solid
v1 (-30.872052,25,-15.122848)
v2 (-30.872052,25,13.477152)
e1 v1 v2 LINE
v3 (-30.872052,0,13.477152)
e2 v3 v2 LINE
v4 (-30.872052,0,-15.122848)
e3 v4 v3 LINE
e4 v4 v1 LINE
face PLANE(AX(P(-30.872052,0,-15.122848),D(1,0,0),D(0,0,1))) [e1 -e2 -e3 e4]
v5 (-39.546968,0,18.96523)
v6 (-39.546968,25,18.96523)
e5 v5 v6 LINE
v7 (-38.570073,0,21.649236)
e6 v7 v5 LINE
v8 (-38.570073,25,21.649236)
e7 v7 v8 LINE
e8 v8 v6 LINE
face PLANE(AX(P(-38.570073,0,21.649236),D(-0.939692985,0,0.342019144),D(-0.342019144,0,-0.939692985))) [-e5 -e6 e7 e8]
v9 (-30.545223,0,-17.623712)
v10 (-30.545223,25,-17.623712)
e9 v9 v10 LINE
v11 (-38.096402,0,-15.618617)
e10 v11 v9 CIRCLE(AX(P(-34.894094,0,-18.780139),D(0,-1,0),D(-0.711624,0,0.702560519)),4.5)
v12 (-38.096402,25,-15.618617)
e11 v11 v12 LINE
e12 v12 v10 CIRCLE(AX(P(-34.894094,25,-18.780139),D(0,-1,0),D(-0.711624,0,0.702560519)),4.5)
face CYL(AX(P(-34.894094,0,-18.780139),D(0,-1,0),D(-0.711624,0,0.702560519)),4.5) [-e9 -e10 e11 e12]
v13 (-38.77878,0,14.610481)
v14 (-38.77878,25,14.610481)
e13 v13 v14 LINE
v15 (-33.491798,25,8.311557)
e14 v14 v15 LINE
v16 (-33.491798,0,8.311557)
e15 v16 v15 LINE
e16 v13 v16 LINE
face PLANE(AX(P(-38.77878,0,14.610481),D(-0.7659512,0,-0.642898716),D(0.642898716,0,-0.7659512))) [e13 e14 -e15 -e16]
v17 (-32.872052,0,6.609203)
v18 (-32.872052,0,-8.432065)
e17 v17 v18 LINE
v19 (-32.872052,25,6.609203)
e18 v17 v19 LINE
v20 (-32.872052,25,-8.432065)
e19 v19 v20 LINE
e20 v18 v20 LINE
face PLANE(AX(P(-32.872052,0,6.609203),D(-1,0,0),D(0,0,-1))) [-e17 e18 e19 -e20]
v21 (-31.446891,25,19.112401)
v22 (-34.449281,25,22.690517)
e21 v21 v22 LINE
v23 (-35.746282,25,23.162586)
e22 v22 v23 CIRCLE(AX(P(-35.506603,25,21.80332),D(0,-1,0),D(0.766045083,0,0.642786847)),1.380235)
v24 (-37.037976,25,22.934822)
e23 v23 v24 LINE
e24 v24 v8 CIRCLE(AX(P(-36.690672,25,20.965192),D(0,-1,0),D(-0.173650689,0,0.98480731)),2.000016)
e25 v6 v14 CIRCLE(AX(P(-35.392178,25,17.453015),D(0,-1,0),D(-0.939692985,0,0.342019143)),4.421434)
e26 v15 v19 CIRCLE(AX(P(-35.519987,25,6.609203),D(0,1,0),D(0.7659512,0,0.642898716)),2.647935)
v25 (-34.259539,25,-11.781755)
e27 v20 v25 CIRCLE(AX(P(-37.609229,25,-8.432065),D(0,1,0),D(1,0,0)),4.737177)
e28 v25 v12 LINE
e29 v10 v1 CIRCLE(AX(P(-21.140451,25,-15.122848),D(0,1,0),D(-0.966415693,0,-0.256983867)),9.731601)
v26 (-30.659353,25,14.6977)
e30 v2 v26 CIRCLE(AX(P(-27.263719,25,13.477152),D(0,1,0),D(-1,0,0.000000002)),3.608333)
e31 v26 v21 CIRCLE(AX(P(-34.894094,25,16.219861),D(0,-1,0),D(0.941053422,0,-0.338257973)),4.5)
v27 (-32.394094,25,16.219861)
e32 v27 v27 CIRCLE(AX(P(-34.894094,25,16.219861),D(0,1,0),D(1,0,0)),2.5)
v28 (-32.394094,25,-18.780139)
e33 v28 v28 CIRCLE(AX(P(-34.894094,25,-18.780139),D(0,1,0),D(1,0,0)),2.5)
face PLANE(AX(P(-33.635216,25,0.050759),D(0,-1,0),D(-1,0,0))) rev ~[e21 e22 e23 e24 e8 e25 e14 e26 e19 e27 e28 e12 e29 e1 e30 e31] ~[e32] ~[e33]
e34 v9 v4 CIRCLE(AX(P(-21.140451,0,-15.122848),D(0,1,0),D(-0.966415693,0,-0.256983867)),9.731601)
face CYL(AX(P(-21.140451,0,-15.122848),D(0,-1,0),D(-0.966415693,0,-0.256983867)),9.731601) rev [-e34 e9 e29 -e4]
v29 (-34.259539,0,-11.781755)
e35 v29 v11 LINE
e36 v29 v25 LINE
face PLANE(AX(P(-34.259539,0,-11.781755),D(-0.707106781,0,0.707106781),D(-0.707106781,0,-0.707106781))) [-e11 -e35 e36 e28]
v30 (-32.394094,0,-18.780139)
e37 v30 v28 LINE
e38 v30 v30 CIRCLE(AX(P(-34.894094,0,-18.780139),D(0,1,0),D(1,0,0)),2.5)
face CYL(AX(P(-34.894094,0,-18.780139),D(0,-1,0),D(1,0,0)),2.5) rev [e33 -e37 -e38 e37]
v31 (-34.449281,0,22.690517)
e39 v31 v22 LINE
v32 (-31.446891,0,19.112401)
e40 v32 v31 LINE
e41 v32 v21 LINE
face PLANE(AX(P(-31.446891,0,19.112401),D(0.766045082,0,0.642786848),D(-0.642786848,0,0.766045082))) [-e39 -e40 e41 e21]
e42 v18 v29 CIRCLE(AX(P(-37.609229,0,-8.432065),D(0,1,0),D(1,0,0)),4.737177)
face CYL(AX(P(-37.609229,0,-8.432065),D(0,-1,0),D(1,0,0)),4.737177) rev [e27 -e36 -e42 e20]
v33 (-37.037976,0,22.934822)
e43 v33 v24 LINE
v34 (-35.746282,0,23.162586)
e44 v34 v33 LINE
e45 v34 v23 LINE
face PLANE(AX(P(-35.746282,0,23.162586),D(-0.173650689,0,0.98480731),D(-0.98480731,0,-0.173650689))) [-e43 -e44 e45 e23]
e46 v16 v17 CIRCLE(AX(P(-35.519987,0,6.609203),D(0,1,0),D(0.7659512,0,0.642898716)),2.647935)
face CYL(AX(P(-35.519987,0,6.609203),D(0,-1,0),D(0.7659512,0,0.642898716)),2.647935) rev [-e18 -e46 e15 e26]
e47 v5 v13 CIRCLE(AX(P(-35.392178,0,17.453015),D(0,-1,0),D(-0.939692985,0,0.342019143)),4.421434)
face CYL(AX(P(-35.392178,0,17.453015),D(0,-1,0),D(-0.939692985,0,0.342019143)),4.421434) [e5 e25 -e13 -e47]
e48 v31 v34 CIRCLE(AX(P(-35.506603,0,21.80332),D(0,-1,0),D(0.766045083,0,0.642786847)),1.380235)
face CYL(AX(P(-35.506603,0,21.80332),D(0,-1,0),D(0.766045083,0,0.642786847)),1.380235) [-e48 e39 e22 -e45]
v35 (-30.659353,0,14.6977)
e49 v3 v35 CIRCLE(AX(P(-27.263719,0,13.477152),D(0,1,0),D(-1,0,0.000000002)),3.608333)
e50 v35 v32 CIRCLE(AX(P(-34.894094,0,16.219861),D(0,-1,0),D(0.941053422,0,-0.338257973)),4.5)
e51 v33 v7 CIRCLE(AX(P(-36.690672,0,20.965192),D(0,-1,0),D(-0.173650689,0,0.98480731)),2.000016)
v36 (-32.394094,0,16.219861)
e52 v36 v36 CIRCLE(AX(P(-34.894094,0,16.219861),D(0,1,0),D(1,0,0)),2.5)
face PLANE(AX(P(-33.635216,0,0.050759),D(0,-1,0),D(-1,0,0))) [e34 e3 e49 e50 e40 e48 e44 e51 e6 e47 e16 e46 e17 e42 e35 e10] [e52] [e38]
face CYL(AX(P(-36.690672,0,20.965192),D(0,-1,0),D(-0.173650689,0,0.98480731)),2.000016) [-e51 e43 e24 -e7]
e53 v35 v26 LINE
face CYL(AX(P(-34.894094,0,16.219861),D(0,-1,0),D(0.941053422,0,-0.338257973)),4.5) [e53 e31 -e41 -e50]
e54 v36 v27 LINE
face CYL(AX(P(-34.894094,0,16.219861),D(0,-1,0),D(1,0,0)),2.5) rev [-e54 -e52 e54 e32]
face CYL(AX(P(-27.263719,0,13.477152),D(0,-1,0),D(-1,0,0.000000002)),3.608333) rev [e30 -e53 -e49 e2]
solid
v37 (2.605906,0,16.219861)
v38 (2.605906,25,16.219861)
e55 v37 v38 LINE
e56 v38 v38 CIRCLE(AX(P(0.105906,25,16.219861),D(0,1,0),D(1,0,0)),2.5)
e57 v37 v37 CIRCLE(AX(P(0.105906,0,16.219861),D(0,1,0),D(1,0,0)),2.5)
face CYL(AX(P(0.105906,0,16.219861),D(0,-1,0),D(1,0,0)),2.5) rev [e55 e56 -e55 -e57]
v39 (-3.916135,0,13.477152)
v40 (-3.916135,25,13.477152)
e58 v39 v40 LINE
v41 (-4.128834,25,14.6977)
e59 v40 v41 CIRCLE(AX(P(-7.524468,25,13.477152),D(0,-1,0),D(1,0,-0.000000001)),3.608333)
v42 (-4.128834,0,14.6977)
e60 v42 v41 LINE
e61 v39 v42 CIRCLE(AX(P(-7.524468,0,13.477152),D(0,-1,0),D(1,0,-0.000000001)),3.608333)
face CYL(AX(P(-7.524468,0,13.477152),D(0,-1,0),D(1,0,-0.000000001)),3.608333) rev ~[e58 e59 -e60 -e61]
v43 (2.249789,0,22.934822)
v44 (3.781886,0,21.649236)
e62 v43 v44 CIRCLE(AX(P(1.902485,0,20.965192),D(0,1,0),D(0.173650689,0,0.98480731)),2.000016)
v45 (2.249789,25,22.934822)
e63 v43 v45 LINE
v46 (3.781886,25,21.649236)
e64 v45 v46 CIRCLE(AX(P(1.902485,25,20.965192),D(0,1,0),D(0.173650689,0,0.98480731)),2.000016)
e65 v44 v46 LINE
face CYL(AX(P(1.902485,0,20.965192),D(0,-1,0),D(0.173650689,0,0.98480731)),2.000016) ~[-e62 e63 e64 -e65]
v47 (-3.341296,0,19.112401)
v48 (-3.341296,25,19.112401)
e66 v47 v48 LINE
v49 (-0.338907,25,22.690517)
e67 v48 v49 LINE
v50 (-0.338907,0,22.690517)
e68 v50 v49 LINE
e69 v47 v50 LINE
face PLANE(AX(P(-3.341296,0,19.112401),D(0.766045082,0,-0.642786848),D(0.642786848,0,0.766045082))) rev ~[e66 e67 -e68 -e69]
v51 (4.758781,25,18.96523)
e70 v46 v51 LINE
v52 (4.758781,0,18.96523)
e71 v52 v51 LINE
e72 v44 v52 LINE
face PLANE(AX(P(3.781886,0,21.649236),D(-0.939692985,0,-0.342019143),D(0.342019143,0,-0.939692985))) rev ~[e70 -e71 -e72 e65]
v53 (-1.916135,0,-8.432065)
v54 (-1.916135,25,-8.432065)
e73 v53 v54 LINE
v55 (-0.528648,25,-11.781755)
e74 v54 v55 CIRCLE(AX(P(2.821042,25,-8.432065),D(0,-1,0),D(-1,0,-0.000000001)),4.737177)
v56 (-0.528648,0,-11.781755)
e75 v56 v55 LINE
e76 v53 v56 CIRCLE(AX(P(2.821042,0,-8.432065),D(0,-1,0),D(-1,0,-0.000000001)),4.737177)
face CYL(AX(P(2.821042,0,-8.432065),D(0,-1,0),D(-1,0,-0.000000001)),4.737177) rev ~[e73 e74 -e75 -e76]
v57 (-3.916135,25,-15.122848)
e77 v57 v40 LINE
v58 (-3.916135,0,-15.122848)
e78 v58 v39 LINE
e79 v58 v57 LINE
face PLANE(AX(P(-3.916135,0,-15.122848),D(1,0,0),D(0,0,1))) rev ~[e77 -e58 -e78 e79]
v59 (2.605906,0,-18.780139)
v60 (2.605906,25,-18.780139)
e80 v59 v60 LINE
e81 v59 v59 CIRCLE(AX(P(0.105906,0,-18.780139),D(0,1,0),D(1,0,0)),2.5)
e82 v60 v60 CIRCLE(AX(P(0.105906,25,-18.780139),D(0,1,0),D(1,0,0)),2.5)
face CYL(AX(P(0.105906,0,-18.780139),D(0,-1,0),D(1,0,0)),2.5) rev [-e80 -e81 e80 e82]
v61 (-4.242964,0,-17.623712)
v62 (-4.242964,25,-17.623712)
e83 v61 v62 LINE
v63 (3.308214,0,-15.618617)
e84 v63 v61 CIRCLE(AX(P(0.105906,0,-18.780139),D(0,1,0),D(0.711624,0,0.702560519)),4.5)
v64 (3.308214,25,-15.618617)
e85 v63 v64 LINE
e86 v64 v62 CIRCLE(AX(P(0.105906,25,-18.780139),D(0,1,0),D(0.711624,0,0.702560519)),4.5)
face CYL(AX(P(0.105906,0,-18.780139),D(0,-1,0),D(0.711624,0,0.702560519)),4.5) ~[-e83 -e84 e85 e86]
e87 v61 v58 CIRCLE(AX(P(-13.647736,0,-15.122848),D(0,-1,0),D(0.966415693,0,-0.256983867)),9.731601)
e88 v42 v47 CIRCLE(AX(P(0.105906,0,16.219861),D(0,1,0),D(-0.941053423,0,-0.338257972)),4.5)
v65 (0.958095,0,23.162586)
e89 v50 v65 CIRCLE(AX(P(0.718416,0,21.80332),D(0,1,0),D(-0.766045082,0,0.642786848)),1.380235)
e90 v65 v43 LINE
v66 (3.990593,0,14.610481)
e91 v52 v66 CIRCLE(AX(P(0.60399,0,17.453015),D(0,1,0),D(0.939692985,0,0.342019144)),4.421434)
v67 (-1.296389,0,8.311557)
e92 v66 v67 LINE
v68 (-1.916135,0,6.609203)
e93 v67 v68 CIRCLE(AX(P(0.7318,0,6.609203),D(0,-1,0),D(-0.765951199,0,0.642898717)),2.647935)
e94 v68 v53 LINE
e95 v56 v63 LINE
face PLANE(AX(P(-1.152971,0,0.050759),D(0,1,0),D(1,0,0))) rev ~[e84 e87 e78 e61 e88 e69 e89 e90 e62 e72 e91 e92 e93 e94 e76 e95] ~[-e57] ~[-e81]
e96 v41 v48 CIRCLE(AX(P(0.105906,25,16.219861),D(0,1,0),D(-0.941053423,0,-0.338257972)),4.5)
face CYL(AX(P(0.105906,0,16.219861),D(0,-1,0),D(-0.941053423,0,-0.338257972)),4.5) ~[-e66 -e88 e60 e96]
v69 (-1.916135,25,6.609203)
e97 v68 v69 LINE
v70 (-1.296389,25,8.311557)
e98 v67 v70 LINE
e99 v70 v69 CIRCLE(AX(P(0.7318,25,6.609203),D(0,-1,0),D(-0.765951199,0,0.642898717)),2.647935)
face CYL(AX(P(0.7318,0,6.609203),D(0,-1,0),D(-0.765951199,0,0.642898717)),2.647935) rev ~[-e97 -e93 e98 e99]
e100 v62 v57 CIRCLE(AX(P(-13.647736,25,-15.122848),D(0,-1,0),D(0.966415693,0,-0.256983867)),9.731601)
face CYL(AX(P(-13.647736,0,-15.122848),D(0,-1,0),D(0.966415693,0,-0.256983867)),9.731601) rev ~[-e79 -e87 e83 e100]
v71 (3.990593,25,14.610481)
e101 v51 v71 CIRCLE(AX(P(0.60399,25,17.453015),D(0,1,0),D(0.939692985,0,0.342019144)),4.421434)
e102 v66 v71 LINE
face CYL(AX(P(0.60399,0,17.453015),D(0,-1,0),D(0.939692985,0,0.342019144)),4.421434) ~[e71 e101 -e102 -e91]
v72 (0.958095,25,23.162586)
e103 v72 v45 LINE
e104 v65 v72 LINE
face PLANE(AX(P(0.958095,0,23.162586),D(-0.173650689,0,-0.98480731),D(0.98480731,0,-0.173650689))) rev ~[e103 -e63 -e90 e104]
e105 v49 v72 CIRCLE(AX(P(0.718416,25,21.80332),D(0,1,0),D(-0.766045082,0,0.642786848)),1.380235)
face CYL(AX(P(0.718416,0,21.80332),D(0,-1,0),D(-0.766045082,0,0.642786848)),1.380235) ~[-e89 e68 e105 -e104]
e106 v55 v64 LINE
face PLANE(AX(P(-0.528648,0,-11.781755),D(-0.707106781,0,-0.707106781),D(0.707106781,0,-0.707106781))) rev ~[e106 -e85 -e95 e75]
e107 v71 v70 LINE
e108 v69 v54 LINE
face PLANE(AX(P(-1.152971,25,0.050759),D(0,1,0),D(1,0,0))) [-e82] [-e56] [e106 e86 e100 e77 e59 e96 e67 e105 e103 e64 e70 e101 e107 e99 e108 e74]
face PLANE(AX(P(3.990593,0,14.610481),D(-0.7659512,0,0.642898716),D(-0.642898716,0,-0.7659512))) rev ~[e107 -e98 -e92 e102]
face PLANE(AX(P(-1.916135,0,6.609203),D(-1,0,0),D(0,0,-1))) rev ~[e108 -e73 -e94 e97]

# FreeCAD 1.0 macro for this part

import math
import FreeCAD as App
import Part
import Sketcher

V = App.Vector
Q = App.Units.Quantity

doc = App.newDocument("Part")
body = doc.addObject("PartDesign::Body", "Body")

# Sketch on XZ plane
sketch1 = body.newObject("Sketcher::SketchObject", "Sketch")
sketch1.AttachmentSupport = (doc.getObject("XZ_Plane"), [""])
sketch1.MapMode = "FlatFace"
sketch1.addGeometry([
    Part.LineSegment(V(-3.341296, 19.112401, 0), V(-0.338907, 22.690517, 0)),  # 0
    Part.ArcOfCircle(Part.Circle(V(0.718416, 21.80332, 0), V(0, 0, 1), 1.380235), math.radians(79.999854), math.radians(140.000057)),  # 1
    Part.LineSegment(V(0.958095, 23.162586, 0), V(2.249789, 22.934822, 0)),  # 2
    Part.ArcOfCircle(Part.Circle(V(1.902485, 20.965192, 0), V(0, 0, 1), 2.000016), math.radians(19.999939), math.radians(79.999854)),  # 3
    Part.LineSegment(V(3.781886, 21.649236, 0), V(4.758781, 18.96523, 0)),  # 4
    Part.ArcOfCircle(Part.Circle(V(0.60399, 17.453015, 0), V(0, 0, 1), 4.421434), math.radians(-40.008311), math.radians(19.999939)),  # 5
    Part.LineSegment(V(3.990593, 14.610481, 0), V(-1.296389, 8.311557, 0)),  # 6
    Part.ArcOfCircle(Part.Circle(V(0.7318, 6.609203, 0), V(0, 0, 1), 2.647935), math.radians(139.991689), math.radians(180)),  # 7
    Part.LineSegment(V(-1.916135, 6.609203, 0), V(-1.916135, -8.432065, 0)),  # 8
    Part.ArcOfCircle(Part.Circle(V(2.821042, -8.432065, 0), V(0, 0, 1), 4.737177), math.radians(-180), math.radians(-135)),  # 9
    Part.LineSegment(V(-0.528648, -11.781755, 0), V(3.308214, -15.618617, 0)),  # 10
    Part.ArcOfCircle(Part.Circle(V(0.105906, -18.780139, 0), V(0, 0, 1), 4.5), math.radians(165.10883), math.radians(404.632797)),  # 11
    Part.ArcOfCircle(Part.Circle(V(-13.647736, -15.122848, 0), V(0, 0, 1), 9.731601), math.radians(-14.89117), math.radians(0)),  # 12
    Part.LineSegment(V(-3.916135, -15.122848, 0), V(-3.916135, 13.477152, 0)),  # 13
    Part.ArcOfCircle(Part.Circle(V(-7.524468, 13.477152, 0), V(0, 0, 1), 3.608333), math.radians(0), math.radians(19.770776)),  # 14
    Part.ArcOfCircle(Part.Circle(V(0.105906, 16.219861, 0), V(0, 0, 1), 4.5), math.radians(140.000057), math.radians(199.770776)),  # 15
    Part.Circle(V(0.105906, 16.219861, 0), V(0, 0, 1), 2.5),  # 16
    Part.Circle(V(0.105906, -18.780139, 0), V(0, 0, 1), 2.5),  # 17
], False)
sketch1.addConstraint([
    Sketcher.Constraint("Coincident", 0, 2, 1, 2),
    Sketcher.Constraint("Coincident", 1, 1, 2, 1),
    Sketcher.Constraint("Coincident", 2, 2, 3, 2),
    Sketcher.Constraint("Coincident", 3, 1, 4, 1),
    Sketcher.Constraint("Coincident", 4, 2, 5, 2),
    Sketcher.Constraint("Coincident", 5, 1, 6, 1),
    Sketcher.Constraint("Coincident", 6, 2, 7, 1),
    Sketcher.Constraint("Coincident", 7, 2, 8, 1),
    Sketcher.Constraint("Coincident", 8, 2, 9, 1),
    Sketcher.Constraint("Coincident", 9, 2, 10, 1),
    Sketcher.Constraint("Coincident", 10, 2, 11, 2),
    Sketcher.Constraint("Coincident", 11, 1, 12, 1),
    Sketcher.Constraint("Coincident", 12, 2, 13, 1),
    Sketcher.Constraint("Coincident", 13, 2, 14, 1),
    Sketcher.Constraint("Coincident", 14, 2, 15, 2),
    Sketcher.Constraint("Coincident", 15, 1, 0, 1),
    Sketcher.Constraint("Vertical", 8),
    Sketcher.Constraint("Vertical", 13),
    Sketcher.Constraint("Coincident", 16, 3, 15, 3),
    Sketcher.Constraint("Coincident", 17, 3, 11, 3),
    Sketcher.Constraint("Diameter", 16, 5.0),
    Sketcher.Constraint("Diameter", 17, 5.0),
    Sketcher.Constraint("Radius", 11, 4.5),
    Sketcher.Constraint("Radius", 15, 4.5),
    Sketcher.Constraint("DistanceY", 13, 1, 13, 2, 28.6),
    Sketcher.Constraint("DistanceX", 12, 2, 8, 2, 2.0),
    Sketcher.Constraint("Radius", 12, 9.731601),
    Sketcher.Constraint("Radius", 1, 1.380235),
    Sketcher.Constraint("Radius", 3, 2.000016),
    Sketcher.Constraint("Radius", 5, 4.421434),
    Sketcher.Constraint("Radius", 7, 2.647935),
    Sketcher.Constraint("Radius", 9, 4.737177),
    Sketcher.Constraint("Radius", 14, 3.608333),
    Sketcher.Constraint("DistanceX", 0, 2, 1, 1, 1.297001),
    Sketcher.Constraint("DistanceX", -1, 1, 7, 3, 0.7318),
    Sketcher.Constraint("DistanceY", -1, 1, 14, 2, 14.6977),
    Sketcher.Constraint("DistanceY", -1, 1, 15, 1, 19.112401),
    Sketcher.Constraint("DistanceY", 1, 3, 2, 2, 1.131502),
    Sketcher.Constraint("DistanceX", 5, 3, 2, 2, 1.645799),
    Sketcher.Constraint("DistanceX", 3, 3, 3, 1, 1.879401),
    Sketcher.Constraint("DistanceX", 14, 2, 13, 2, 0.212699),
    Sketcher.Constraint("Distance", 2, 1.311621),
    Sketcher.Constraint("Distance", 4, 2.856258),
    Sketcher.Constraint("DistanceY", 8, 2, 8, 1, 15.041267),
    Sketcher.Constraint("DistanceY", -1, 1, 1, 3, 21.80332),
    Sketcher.Constraint("DistanceY", -1, 1, 3, 3, 20.965192),
    Sketcher.Constraint("DistanceX", -1, 1, 5, 3, 0.60399),
    Sketcher.Constraint("DistanceY", 11, 3, -1, 1, 18.780139),
    Sketcher.Constraint("DistanceY", -1, 1, 15, 3, 16.219861),
    Sketcher.Constraint("DistanceX", -1, 1, 4, 2, 4.758781),
    Sketcher.Constraint("DistanceY", -1, 1, 5, 1, 14.610481),
    Sketcher.Constraint("DistanceX", 6, 2, -1, 1, 1.296389),
    Sketcher.Constraint("DistanceX", 9, 2, -1, 1, 0.528648),
    Sketcher.Constraint("DistanceX", 1, 3, 3, 3, 1.184069),
    Sketcher.Constraint("DistanceY", 7, 3, 3, 3, 14.355989),
    Sketcher.Constraint("DistanceY", 9, 3, 5, 3, 25.885079),
    Sketcher.Constraint("DistanceX", 11, 3, 3, 3, 1.796578),
    Sketcher.Constraint("DistanceY", 7, 2, 14, 3, 6.86795),
    Sketcher.Constraint("DistanceX", 8, 2, 10, 2, 5.22435),
    Sketcher.Constraint("DistanceX", 11, 1, 11, 3, 4.348871),
    Sketcher.Constraint("DistanceY", 11, 3, 12, 2, 3.657292),
])
pad1 = body.newObject("PartDesign::Pad", "Pad")
pad1.Profile = sketch1
pad1.Length = 25
pad1.Reversed = True
body2 = doc.addObject("PartDesign::Body", "Body001")

# Sketch on XZ plane
sketch2 = body2.newObject("Sketcher::SketchObject", "Sketch001")
sketch2.AttachmentSupport = (doc.getObject("XZ_Plane001"), [""])
sketch2.MapMode = "FlatFace"
sketch2.addGeometry([
    Part.LineSegment(V(-30.872052, 13.477152, 0), V(-30.872052, -15.122848, 0)),  # 0
    Part.ArcOfCircle(Part.Circle(V(-21.140451, -15.122848, 0), V(0, 0, 1), 9.731601), math.radians(-180), math.radians(-165.10883)),  # 1
    Part.ArcOfCircle(Part.Circle(V(-34.894094, -18.780139, 0), V(0, 0, 1), 4.5), math.radians(135.367203), math.radians(374.89117)),  # 2
    Part.LineSegment(V(-38.096402, -15.618617, 0), V(-34.259539, -11.781755, 0)),  # 3
    Part.ArcOfCircle(Part.Circle(V(-37.609229, -8.432065, 0), V(0, 0, 1), 4.737177), math.radians(-45), math.radians(0)),  # 4
    Part.LineSegment(V(-32.872052, -8.432065, 0), V(-32.872052, 6.609203, 0)),  # 5
    Part.ArcOfCircle(Part.Circle(V(-35.519987, 6.609203, 0), V(0, 0, 1), 2.647935), math.radians(0), math.radians(40.008311)),  # 6
    Part.LineSegment(V(-33.491798, 8.311557, 0), V(-38.77878, 14.610481, 0)),  # 7
    Part.ArcOfCircle(Part.Circle(V(-35.392178, 17.453015, 0), V(0, 0, 1), 4.421434), math.radians(160.000061), math.radians(220.008311)),  # 8
    Part.LineSegment(V(-39.546968, 18.96523, 0), V(-38.570073, 21.649236, 0)),  # 9
    Part.ArcOfCircle(Part.Circle(V(-36.690672, 20.965192, 0), V(0, 0, 1), 2.000016), math.radians(100.000146), math.radians(160.000061)),  # 10
    Part.LineSegment(V(-37.037976, 22.934822, 0), V(-35.746282, 23.162586, 0)),  # 11
    Part.ArcOfCircle(Part.Circle(V(-35.506603, 21.80332, 0), V(0, 0, 1), 1.380235), math.radians(39.999943), math.radians(100.000146)),  # 12
    Part.LineSegment(V(-34.449281, 22.690517, 0), V(-31.446891, 19.112401, 0)),  # 13
    Part.ArcOfCircle(Part.Circle(V(-34.894094, 16.219861, 0), V(0, 0, 1), 4.5), math.radians(-19.770776), math.radians(39.999943)),  # 14
    Part.ArcOfCircle(Part.Circle(V(-27.263719, 13.477152, 0), V(0, 0, 1), 3.608333), math.radians(160.229224), math.radians(180)),  # 15
    Part.Circle(V(-34.894094, 16.219861, 0), V(0, 0, 1), 2.5),  # 16
    Part.Circle(V(-34.894094, -18.780139, 0), V(0, 0, 1), 2.5),  # 17
], False)
sketch2.addConstraint([
    Sketcher.Constraint("Tangent", 0, 2, 1, 1),
    Sketcher.Constraint("Tangent", 1, 2, 2, 2),
    Sketcher.Constraint("Coincident", 2, 1, 3, 1),
    Sketcher.Constraint("Tangent", 3, 2, 4, 1),
    Sketcher.Constraint("Tangent", 4, 2, 5, 1),
    Sketcher.Constraint("Tangent", 5, 2, 6, 1),
    Sketcher.Constraint("Tangent", 6, 2, 7, 1),
    Sketcher.Constraint("Tangent", 7, 2, 8, 2),
    Sketcher.Constraint("Tangent", 8, 1, 9, 1),
    Sketcher.Constraint("Tangent", 9, 2, 10, 2),
    Sketcher.Constraint("Tangent", 10, 1, 11, 1),
    Sketcher.Constraint("Tangent", 11, 2, 12, 2),
    Sketcher.Constraint("Tangent", 12, 1, 13, 1),
    Sketcher.Constraint("Tangent", 13, 2, 14, 2),
    Sketcher.Constraint("Tangent", 14, 1, 15, 1),
    Sketcher.Constraint("Tangent", 15, 2, 0, 1),
    Sketcher.Constraint("Vertical", 0),
    Sketcher.Constraint("Vertical", 5),
    Sketcher.Constraint("Coincident", 16, 3, 14, 3),
    Sketcher.Constraint("Coincident", 17, 3, 2, 3),
    Sketcher.Constraint("Equal", 2, 14),
    Sketcher.Constraint("Equal", 16, 17),
    Sketcher.Constraint("Vertical", 2, 3, 14, 3),
    Sketcher.Constraint("Diameter", 16, 5.0),
    Sketcher.Constraint("Radius", 2, 4.5),
    Sketcher.Constraint("Angle", 3, Q("45 deg")),
    Sketcher.Constraint("DistanceY", 0, 2, 0, 1, 28.6),
    Sketcher.Constraint("DistanceX", 4, 2, 0, 2, 2.0),
    Sketcher.Constraint("Radius", 1, 9.731601),
    Sketcher.Constraint("Radius", 4, 4.737177),
    Sketcher.Constraint("Radius", 6, 2.647935),
    Sketcher.Constraint("Radius", 8, 4.421434),
    Sketcher.Constraint("Radius", 10, 2.000016),
    Sketcher.Constraint("Radius", 12, 1.380235),
    Sketcher.Constraint("Radius", 15, 3.608333),
    Sketcher.Constraint("DistanceX", 11, 2, 12, 1, 1.297001),
    Sketcher.Constraint("DistanceX", 2, 1, -1, 1, 38.096402),
    Sketcher.Constraint("DistanceX", 6, 2, -1, 1, 33.491798),
    Sketcher.Constraint("DistanceY", -1, 1, 13, 2, 19.112401),
    Sketcher.Constraint("DistanceY", -1, 1, 14, 1, 14.6977),
    Sketcher.Constraint("DistanceX", 9, 2, 10, 3, 1.879401),
    Sketcher.Constraint("DistanceY", 12, 3, 10, 1, 1.131502),
    Sketcher.Constraint("DistanceX", 10, 1, 8, 3, 1.645799),
    Sketcher.Constraint("DistanceX", 15, 2, 14, 1, 0.212699),
    Sketcher.Constraint("DistanceY", 5, 1, 5, 2, 15.041267),
    Sketcher.Constraint("DistanceY", -1, 1, 10, 3, 20.965192),
])
pad2 = body2.newObject("PartDesign::Pad", "Pad001")
pad2.Profile = sketch2
pad2.Length = 25
pad2.Reversed = True

doc.recompute()
